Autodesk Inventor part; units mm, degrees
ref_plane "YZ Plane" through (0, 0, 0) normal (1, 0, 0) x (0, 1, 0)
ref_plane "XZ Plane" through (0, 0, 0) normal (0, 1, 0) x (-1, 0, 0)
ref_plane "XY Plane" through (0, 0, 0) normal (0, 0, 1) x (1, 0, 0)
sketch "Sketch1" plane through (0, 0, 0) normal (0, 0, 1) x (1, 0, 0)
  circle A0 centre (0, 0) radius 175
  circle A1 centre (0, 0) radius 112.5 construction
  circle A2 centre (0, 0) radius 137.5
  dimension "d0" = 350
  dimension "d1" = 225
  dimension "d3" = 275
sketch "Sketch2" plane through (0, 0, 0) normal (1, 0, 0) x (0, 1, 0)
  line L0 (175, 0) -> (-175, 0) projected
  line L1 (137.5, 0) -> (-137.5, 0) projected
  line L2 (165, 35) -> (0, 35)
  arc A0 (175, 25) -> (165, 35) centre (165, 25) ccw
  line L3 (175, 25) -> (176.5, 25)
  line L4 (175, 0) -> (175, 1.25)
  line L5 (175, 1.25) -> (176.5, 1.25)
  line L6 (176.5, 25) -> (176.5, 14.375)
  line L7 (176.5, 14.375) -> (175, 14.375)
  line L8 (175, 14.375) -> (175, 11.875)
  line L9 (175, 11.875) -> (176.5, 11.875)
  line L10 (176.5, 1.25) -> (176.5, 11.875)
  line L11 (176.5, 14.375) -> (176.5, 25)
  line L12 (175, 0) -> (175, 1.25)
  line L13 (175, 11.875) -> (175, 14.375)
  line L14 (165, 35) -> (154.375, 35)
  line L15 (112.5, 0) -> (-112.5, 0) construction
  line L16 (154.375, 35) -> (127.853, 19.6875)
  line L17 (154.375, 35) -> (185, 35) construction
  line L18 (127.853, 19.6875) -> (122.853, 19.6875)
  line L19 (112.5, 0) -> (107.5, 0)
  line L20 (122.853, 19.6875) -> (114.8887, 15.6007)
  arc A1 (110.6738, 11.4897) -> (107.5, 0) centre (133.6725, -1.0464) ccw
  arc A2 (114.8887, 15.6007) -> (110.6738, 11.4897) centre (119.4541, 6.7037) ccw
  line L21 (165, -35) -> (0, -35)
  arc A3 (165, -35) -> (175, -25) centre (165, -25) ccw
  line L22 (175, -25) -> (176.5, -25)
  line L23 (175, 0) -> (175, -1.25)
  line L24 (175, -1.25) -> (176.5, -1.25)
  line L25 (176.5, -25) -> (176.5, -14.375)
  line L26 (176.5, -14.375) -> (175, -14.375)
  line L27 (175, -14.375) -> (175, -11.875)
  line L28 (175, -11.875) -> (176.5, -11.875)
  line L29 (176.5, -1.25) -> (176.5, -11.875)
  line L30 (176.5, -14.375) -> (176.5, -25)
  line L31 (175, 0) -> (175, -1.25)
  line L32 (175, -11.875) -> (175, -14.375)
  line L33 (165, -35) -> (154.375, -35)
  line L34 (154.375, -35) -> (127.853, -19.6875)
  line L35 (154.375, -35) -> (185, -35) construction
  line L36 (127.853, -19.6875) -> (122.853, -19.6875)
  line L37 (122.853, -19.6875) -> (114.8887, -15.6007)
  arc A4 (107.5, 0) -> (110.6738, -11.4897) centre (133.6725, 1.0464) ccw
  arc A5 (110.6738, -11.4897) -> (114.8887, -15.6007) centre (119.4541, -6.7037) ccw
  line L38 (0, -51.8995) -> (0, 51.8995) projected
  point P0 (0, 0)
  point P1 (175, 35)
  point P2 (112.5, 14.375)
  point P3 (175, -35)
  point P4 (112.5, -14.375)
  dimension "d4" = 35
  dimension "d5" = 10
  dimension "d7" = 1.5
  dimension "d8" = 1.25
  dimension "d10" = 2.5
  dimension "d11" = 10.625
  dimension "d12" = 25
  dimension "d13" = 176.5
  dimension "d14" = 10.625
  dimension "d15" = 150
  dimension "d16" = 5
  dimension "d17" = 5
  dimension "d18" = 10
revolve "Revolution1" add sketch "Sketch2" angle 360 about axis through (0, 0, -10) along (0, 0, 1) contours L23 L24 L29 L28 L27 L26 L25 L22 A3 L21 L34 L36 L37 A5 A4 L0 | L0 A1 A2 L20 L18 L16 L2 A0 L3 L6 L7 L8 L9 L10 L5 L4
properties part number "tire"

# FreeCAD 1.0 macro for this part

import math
import FreeCAD as App
import Part
import Sketcher
from FreeCAD import Vector
Q = App.Units.Quantity

doc = App.newDocument("Part")
body = doc.addObject("PartDesign::Body", "Body")

sketch1 = doc.addObject("Sketcher::SketchObject", "Sketch")
body.addObject(sketch1)
sketch1.AttachmentSupport = (doc.YZ_Plane, [""])
sketch1.MapMode = "FlatFace"
sketch1.addGeometry(Part.LineSegment(Vector(175, -1.25, 0), Vector(175, 1.25, 0)), False)
sketch1.addGeometry(Part.LineSegment(Vector(175, 1.25, 0), Vector(176.5, 1.25, 0)), False)
sketch1.addGeometry(Part.LineSegment(Vector(176.5, 1.25, 0), Vector(176.5, 11.875, 0)), False)
sketch1.addGeometry(Part.LineSegment(Vector(176.5, 11.875, 0), Vector(175, 11.875, 0)), False)
sketch1.addGeometry(Part.LineSegment(Vector(175, 11.875, 0), Vector(175, 14.375, 0)), False)
sketch1.addGeometry(Part.LineSegment(Vector(175, 14.375, 0), Vector(176.5, 14.375, 0)), False)
sketch1.addGeometry(Part.LineSegment(Vector(176.5, 14.375, 0), Vector(176.5, 25, 0)), False)
sketch1.addGeometry(Part.LineSegment(Vector(176.5, 25, 0), Vector(175, 25, 0)), False)
sketch1.addGeometry(Part.ArcOfCircle(Part.Circle(Vector(165, 25, 0), Vector(0, 0, 1), 10), math.radians(0), math.radians(90)), False)
sketch1.addGeometry(Part.LineSegment(Vector(165, 35, 0), Vector(154.375, 35, 0)), False)
sketch1.addGeometry(Part.LineSegment(Vector(154.375, 35, 0), Vector(127.853, 19.6875, 0)), False)
sketch1.addGeometry(Part.LineSegment(Vector(127.853, 19.6875, 0), Vector(122.853, 19.6875, 0)), False)
sketch1.addGeometry(Part.LineSegment(Vector(122.853, 19.6875, 0), Vector(114.8887, 15.6007, 0)), False)
sketch1.addGeometry(Part.ArcOfCircle(Part.Circle(Vector(119.4541, 6.7037, 0), Vector(0, 0, 1), 9.999974), math.radians(117.16414), math.radians(151.405911)), False)
sketch1.addGeometry(Part.ArcOfCircle(Part.Circle(Vector(133.6725, -1.0464, 0), Vector(0, 0, 1), 26.193396), math.radians(151.406142), math.radians(177.710483)), False)
sketch1.addGeometry(Part.ArcOfCircle(Part.Circle(Vector(133.6725, 1.0464, 0), Vector(0, 0, 1), 26.19341), math.radians(-177.710483), math.radians(-151.406142)), False)
sketch1.addGeometry(Part.ArcOfCircle(Part.Circle(Vector(119.4541, -6.7037, 0), Vector(0, 0, 1), 9.999973), math.radians(-151.405911), math.radians(-117.16414)), False)
sketch1.addGeometry(Part.LineSegment(Vector(114.8887, -15.6007, 0), Vector(122.853, -19.6875, 0)), False)
sketch1.addGeometry(Part.LineSegment(Vector(122.853, -19.6875, 0), Vector(127.853, -19.6875, 0)), False)
sketch1.addGeometry(Part.LineSegment(Vector(127.853, -19.6875, 0), Vector(154.375, -35, 0)), False)
sketch1.addGeometry(Part.LineSegment(Vector(154.375, -35, 0), Vector(165, -35, 0)), False)
sketch1.addGeometry(Part.ArcOfCircle(Part.Circle(Vector(165, -25, 0), Vector(0, 0, 1), 10), math.radians(-90), math.radians(0)), False)
sketch1.addGeometry(Part.LineSegment(Vector(175, -25, 0), Vector(176.5, -25, 0)), False)
sketch1.addGeometry(Part.LineSegment(Vector(176.5, -25, 0), Vector(176.5, -14.375, 0)), False)
sketch1.addGeometry(Part.LineSegment(Vector(176.5, -14.375, 0), Vector(175, -14.375, 0)), False)
sketch1.addGeometry(Part.LineSegment(Vector(175, -14.375, 0), Vector(175, -11.875, 0)), False)
sketch1.addGeometry(Part.LineSegment(Vector(175, -11.875, 0), Vector(176.5, -11.875, 0)), False)
sketch1.addGeometry(Part.LineSegment(Vector(176.5, -11.875, 0), Vector(176.5, -1.25, 0)), False)
sketch1.addGeometry(Part.LineSegment(Vector(176.5, -1.25, 0), Vector(175, -1.25, 0)), False)
sketch1.addConstraint(Sketcher.Constraint("Coincident", 0, 2, 1, 1))
sketch1.addConstraint(Sketcher.Constraint("Coincident", 1, 2, 2, 1))
sketch1.addConstraint(Sketcher.Constraint("Coincident", 2, 2, 3, 1))
sketch1.addConstraint(Sketcher.Constraint("Coincident", 3, 2, 4, 1))
sketch1.addConstraint(Sketcher.Constraint("Coincident", 4, 2, 5, 1))
sketch1.addConstraint(Sketcher.Constraint("Coincident", 5, 2, 6, 1))
sketch1.addConstraint(Sketcher.Constraint("Coincident", 6, 2, 7, 1))
sketch1.addConstraint(Sketcher.Constraint("Coincident", 7, 2, 8, 1))
sketch1.addConstraint(Sketcher.Constraint("Coincident", 8, 2, 9, 1))
sketch1.addConstraint(Sketcher.Constraint("Coincident", 9, 2, 10, 1))
sketch1.addConstraint(Sketcher.Constraint("Coincident", 10, 2, 11, 1))
sketch1.addConstraint(Sketcher.Constraint("Coincident", 11, 2, 12, 1))
sketch1.addConstraint(Sketcher.Constraint("Coincident", 12, 2, 13, 1))
sketch1.addConstraint(Sketcher.Constraint("Coincident", 13, 2, 14, 1))
sketch1.addConstraint(Sketcher.Constraint("Coincident", 14, 2, 15, 1))
sketch1.addConstraint(Sketcher.Constraint("Coincident", 15, 2, 16, 1))
sketch1.addConstraint(Sketcher.Constraint("Coincident", 16, 2, 17, 1))
sketch1.addConstraint(Sketcher.Constraint("Coincident", 17, 2, 18, 1))
sketch1.addConstraint(Sketcher.Constraint("Coincident", 18, 2, 19, 1))
sketch1.addConstraint(Sketcher.Constraint("Coincident", 19, 2, 20, 1))
sketch1.addConstraint(Sketcher.Constraint("Coincident", 20, 2, 21, 1))
sketch1.addConstraint(Sketcher.Constraint("Coincident", 21, 2, 22, 1))
sketch1.addConstraint(Sketcher.Constraint("Coincident", 22, 2, 23, 1))
sketch1.addConstraint(Sketcher.Constraint("Coincident", 23, 2, 24, 1))
sketch1.addConstraint(Sketcher.Constraint("Coincident", 24, 2, 25, 1))
sketch1.addConstraint(Sketcher.Constraint("Coincident", 25, 2, 26, 1))
sketch1.addConstraint(Sketcher.Constraint("Coincident", 26, 2, 27, 1))
sketch1.addConstraint(Sketcher.Constraint("Coincident", 27, 2, 28, 1))
sketch1.addConstraint(Sketcher.Constraint("Coincident", 28, 2, 0, 1))
sketch1.addConstraint(Sketcher.Constraint("Vertical", 0))
sketch1.addConstraint(Sketcher.Constraint("Horizontal", 1))
sketch1.addConstraint(Sketcher.Constraint("Vertical", 2))
sketch1.addConstraint(Sketcher.Constraint("Horizontal", 3))
sketch1.addConstraint(Sketcher.Constraint("Vertical", 4))
sketch1.addConstraint(Sketcher.Constraint("Horizontal", 5))
sketch1.addConstraint(Sketcher.Constraint("Vertical", 6))
sketch1.addConstraint(Sketcher.Constraint("Horizontal", 7))
sketch1.addConstraint(Sketcher.Constraint("Horizontal", 9))
sketch1.addConstraint(Sketcher.Constraint("Horizontal", 11))
sketch1.addConstraint(Sketcher.Constraint("Horizontal", 18))
sketch1.addConstraint(Sketcher.Constraint("Horizontal", 20))
sketch1.addConstraint(Sketcher.Constraint("Horizontal", 22))
sketch1.addConstraint(Sketcher.Constraint("Vertical", 23))
sketch1.addConstraint(Sketcher.Constraint("Horizontal", 24))
sketch1.addConstraint(Sketcher.Constraint("Vertical", 25))
sketch1.addConstraint(Sketcher.Constraint("Horizontal", 26))
sketch1.addConstraint(Sketcher.Constraint("Vertical", 27))
sketch1.addConstraint(Sketcher.Constraint("Horizontal", 28))
sketch1.addConstraint(Sketcher.Constraint("PointOnObject", 14, 2, -1))
sketch1.addConstraint(Sketcher.Constraint("Radius", 8, Q("10 mm")))
sketch1.addConstraint(Sketcher.Constraint("Radius", 13, Q("10 mm")))
sketch1.addConstraint(Sketcher.Constraint("Radius", 16, Q("10 mm")))
sketch1.addConstraint(Sketcher.Constraint("Radius", 21, Q("10 mm")))
sketch1.addConstraint(Sketcher.Constraint("DistanceX", 11, 2, 11, 1, Q("5 mm")))
sketch1.addConstraint(Sketcher.Constraint("DistanceX", 18, 1, 18, 2, Q("5 mm")))
sketch1.addConstraint(Sketcher.Constraint("DistanceX", 1, 1, 1, 2, Q("1.5 mm")))
sketch1.addConstraint(Sketcher.Constraint("DistanceX", 3, 2, 3, 1, Q("1.5 mm")))
sketch1.addConstraint(Sketcher.Constraint("DistanceX", 5, 1, 5, 2, Q("1.5 mm")))
sketch1.addConstraint(Sketcher.Constraint("DistanceX", 7, 2, 7, 1, Q("1.5 mm")))
sketch1.addConstraint(Sketcher.Constraint("DistanceX", 22, 1, 22, 2, Q("1.5 mm")))
sketch1.addConstraint(Sketcher.Constraint("DistanceX", 24, 2, 24, 1, Q("1.5 mm")))
sketch1.addConstraint(Sketcher.Constraint("DistanceX", 26, 1, 26, 2, Q("1.5 mm")))
sketch1.addConstraint(Sketcher.Constraint("DistanceX", 28, 2, 28, 1, Q("1.5 mm")))
sketch1.addConstraint(Sketcher.Constraint("DistanceY", 0, 1, 0, 2, Q("2.5 mm")))
sketch1.addConstraint(Sketcher.Constraint("DistanceY", 4, 1, 4, 2, Q("2.5 mm")))
sketch1.addConstraint(Sketcher.Constraint("DistanceY", 25, 1, 25, 2, Q("2.5 mm")))
sketch1.addConstraint(Sketcher.Constraint("DistanceY", -1, 1, 8, 3, Q("25 mm")))
sketch1.addConstraint(Sketcher.Constraint("DistanceY", 21, 3, -1, 1, Q("25 mm")))
sketch1.addConstraint(Sketcher.Constraint("DistanceY", -1, 1, 6, 2, Q("25 mm")))
sketch1.addConstraint(Sketcher.Constraint("DistanceY", 21, 2, -1, 1, Q("25 mm")))
sketch1.addConstraint(Sketcher.Constraint("DistanceX", 8, 2, 7, 2, Q("10 mm")))
sketch1.addConstraint(Sketcher.Constraint("DistanceX", 20, 2, 0, 2, Q("10 mm")))
sketch1.addConstraint(Sketcher.Constraint("DistanceX", -1, 1, 1, 2, Q("176.5 mm")))
sketch1.addConstraint(Sketcher.Constraint("DistanceX", 9, 2, 9, 1, Q("10.625 mm")))
sketch1.addConstraint(Sketcher.Constraint("DistanceX", 20, 1, 20, 2, Q("10.625 mm")))
sketch1.addConstraint(Sketcher.Constraint("DistanceY", 2, 1, 2, 2, Q("10.625 mm")))
sketch1.addConstraint(Sketcher.Constraint("DistanceY", 6, 1, 6, 2, Q("10.625 mm")))
sketch1.addConstraint(Sketcher.Constraint("DistanceY", 23, 1, 23, 2, Q("10.625 mm")))
sketch1.addConstraint(Sketcher.Constraint("DistanceX", -1, 1, 14, 2, Q("107.5 mm")))
sketch1.addConstraint(Sketcher.Constraint("Radius", 14, Q("26.1934 mm")))
sketch1.addConstraint(Sketcher.Constraint("Radius", 15, Q("26.1934 mm")))
sketch1.addConstraint(Sketcher.Constraint("DistanceY", 14, 3, 13, 3, Q("7.75 mm")))
sketch1.addConstraint(Sketcher.Constraint("DistanceY", 16, 3, 15, 3, Q("7.75 mm")))
sketch1.addConstraint(Sketcher.Constraint("Distance", 10, Q("30.625 mm")))
sketch1.addConstraint(Sketcher.Constraint("Distance", 19, Q("30.625 mm")))
sketch1.addConstraint(Sketcher.Constraint("DistanceX", -1, 1, 13, 3, Q("119.454 mm")))
sketch1.addConstraint(Sketcher.Constraint("DistanceX", -1, 1, 16, 3, Q("119.454 mm")))
sketch1.addConstraint(Sketcher.Constraint("DistanceX", -1, 1, 10, 2, Q("127.853 mm")))
sketch1.addConstraint(Sketcher.Constraint("DistanceX", -1, 1, 17, 2, Q("122.853 mm")))
sketch1.addConstraint(Sketcher.Constraint("DistanceY", 13, 3, 12, 2, Q("8.897 mm")))
sketch1.addConstraint(Sketcher.Constraint("DistanceX", 13, 2, 12, 2, Q("4.215 mm")))
sketch1.addConstraint(Sketcher.Constraint("DistanceY", 15, 2, 16, 3, Q("4.786 mm")))
sketch1.addConstraint(Sketcher.Constraint("DistanceX", 15, 2, 16, 2, Q("4.215 mm")))
revolution = doc.addObject("PartDesign::Revolution", "Revolution")
body.addObject(revolution)
revolution.Profile = sketch1
revolution.ReferenceAxis = (sketch1, ["V_Axis"])
revolution.Angle = 360

doc.recompute()
